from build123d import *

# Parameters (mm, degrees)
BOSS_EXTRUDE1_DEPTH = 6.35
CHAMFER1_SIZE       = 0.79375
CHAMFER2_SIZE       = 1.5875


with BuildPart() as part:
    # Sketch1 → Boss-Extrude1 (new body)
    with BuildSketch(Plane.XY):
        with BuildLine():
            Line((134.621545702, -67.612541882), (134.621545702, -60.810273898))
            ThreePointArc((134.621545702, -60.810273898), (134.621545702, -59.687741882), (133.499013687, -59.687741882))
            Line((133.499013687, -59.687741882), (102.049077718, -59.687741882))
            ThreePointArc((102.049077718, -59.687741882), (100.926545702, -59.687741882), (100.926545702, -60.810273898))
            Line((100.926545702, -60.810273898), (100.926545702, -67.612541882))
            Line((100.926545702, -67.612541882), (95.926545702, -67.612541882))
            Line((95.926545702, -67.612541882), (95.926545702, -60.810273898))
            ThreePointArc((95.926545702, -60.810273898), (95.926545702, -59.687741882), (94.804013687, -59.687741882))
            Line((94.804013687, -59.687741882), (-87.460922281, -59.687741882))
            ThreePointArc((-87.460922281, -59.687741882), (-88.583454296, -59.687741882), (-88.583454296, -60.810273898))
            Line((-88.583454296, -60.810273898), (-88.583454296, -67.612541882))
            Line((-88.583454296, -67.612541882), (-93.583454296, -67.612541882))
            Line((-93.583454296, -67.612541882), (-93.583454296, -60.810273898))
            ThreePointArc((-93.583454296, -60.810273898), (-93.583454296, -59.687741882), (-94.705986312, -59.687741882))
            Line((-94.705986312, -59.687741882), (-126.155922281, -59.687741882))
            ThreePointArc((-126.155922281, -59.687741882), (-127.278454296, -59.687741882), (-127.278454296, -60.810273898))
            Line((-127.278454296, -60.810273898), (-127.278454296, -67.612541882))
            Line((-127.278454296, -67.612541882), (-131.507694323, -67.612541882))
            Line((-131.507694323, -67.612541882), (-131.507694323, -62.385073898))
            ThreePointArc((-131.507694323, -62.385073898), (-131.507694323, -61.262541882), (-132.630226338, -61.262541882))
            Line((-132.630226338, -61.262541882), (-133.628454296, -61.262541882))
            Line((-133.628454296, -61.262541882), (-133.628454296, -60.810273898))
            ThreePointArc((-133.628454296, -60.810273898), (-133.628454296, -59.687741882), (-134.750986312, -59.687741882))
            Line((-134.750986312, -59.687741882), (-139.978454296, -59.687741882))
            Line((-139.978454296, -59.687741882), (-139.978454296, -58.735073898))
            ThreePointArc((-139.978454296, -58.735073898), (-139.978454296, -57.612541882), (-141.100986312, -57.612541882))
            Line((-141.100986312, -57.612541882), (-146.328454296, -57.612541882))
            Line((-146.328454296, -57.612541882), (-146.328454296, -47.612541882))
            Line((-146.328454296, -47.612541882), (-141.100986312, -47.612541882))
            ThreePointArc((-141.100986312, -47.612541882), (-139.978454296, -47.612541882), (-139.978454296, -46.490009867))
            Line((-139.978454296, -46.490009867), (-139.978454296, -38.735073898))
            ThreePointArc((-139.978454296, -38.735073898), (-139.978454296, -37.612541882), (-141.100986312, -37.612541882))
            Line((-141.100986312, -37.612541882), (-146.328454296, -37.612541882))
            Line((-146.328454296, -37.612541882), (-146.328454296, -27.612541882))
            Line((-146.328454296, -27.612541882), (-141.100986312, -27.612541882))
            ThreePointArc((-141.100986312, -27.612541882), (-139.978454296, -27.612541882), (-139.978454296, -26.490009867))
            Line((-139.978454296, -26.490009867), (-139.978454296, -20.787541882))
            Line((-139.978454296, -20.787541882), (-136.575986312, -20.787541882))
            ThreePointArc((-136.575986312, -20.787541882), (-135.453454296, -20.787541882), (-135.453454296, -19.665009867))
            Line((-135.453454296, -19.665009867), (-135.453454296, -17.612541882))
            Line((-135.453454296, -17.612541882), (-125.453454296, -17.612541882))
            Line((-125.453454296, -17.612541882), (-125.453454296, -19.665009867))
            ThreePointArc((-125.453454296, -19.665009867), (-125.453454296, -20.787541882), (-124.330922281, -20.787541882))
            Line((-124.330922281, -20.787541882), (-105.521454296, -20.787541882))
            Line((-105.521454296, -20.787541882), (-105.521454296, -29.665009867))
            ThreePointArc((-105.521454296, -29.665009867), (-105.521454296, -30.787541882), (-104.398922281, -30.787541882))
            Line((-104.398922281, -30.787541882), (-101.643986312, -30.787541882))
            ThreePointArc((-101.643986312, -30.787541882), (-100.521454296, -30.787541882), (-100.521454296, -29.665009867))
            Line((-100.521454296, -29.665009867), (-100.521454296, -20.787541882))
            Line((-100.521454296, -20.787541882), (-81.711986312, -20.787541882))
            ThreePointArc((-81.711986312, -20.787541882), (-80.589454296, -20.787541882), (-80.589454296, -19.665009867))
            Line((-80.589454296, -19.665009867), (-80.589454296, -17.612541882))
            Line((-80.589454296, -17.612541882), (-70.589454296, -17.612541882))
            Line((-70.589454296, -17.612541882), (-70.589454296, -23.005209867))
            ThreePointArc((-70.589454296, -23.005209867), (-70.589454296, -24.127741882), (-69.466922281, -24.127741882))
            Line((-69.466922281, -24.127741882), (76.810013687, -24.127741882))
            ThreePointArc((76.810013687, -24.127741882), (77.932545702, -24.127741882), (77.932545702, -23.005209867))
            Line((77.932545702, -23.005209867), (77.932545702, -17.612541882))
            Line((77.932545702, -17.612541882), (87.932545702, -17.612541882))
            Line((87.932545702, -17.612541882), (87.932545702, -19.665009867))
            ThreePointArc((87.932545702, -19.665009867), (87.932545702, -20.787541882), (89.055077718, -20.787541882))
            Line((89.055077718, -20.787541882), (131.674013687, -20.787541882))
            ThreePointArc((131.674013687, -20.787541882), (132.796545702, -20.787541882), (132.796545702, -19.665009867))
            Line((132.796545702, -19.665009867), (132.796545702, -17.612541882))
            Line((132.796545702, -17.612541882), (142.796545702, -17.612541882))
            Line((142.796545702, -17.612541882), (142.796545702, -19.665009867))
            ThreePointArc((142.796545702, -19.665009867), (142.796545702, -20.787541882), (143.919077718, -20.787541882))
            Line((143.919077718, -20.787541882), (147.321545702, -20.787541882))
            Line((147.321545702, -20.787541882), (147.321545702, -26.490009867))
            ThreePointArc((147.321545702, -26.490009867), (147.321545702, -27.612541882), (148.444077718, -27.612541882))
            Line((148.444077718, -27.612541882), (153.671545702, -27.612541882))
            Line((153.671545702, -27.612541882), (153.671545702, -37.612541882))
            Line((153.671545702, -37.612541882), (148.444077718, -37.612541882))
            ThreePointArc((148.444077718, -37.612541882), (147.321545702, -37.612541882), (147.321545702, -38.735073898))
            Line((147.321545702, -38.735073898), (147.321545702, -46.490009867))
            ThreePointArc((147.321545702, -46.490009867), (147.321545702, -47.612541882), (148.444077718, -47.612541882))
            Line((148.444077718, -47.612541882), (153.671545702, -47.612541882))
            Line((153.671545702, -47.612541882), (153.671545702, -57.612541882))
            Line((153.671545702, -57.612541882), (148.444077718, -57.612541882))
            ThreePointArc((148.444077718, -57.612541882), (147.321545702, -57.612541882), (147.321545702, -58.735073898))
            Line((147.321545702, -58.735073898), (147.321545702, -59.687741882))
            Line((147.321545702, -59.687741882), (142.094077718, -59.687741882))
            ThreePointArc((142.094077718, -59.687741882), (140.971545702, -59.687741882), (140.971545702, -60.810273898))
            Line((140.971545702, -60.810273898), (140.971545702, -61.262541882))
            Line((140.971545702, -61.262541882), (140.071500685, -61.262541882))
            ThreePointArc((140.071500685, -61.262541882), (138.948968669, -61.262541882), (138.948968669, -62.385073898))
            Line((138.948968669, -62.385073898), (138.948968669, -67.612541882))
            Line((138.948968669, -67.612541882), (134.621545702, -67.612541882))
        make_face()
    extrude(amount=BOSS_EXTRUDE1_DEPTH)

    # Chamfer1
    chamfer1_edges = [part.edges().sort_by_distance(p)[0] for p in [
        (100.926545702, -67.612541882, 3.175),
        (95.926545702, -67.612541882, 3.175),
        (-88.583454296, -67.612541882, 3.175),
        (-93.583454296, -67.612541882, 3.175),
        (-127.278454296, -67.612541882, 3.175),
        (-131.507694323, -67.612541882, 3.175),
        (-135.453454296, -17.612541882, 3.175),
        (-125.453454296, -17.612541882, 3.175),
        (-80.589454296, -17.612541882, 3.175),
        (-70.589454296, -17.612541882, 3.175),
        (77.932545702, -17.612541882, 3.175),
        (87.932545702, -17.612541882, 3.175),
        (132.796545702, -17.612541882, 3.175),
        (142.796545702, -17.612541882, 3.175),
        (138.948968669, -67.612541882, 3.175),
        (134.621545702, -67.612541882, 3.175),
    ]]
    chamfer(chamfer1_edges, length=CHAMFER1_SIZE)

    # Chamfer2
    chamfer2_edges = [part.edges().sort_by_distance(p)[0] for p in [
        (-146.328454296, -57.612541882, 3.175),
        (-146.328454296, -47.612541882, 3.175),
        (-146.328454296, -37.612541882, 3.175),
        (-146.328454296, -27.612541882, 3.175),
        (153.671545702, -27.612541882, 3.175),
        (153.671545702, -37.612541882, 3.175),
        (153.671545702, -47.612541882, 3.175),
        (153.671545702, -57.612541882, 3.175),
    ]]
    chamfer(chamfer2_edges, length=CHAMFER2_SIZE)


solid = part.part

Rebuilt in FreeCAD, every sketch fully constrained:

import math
import FreeCAD as App
import Part
import Sketcher
Q = App.Units.Quantity


def edges_at(feature, points):
    """Names of the edges that pass closest to the given points."""
    edges = feature.Shape.Edges
    near = lambda p: min(range(len(edges)), key=lambda i: edges[i].distToShape(Part.Vertex(*p))[0])
    return sorted({f"Edge{near(p) + 1}" for p in points})

doc = App.newDocument("Part")
params = doc.addObject("Spreadsheet::Sheet", "Params")
for row, (alias, value) in enumerate([
    ("sketch1_radius", "0.03125 in"),
    ("pad1_length", "0.25 in"),
    ("chamfer_size", "0.03125 in"),
    ("chamfer2_size", "0.0625 in"),
], start=1):
    params.set(f"A{row}", alias)
    params.set(f"B{row}", "=" + value)
    params.setAlias(f"B{row}", alias)

body = doc.addObject("PartDesign::Body", "Body")

# Sketch on XY plane
sketch1 = body.newObject("Sketcher::SketchObject", "Sketch")
sketch1.AttachmentSupport = (doc.getObject("XY_Plane"), [""])
sketch1.MapMode = "FlatFace"
sketch1.addGeometry(Part.LineSegment(App.Vector(134.62, -60.81, 0), App.Vector(134.62, -67.61, 0)), False)
sketch1.addGeometry(Part.LineSegment(App.Vector(134.62, -67.61, 0), App.Vector(138.95, -67.61, 0)), False)
sketch1.addGeometry(Part.LineSegment(App.Vector(138.95, -67.61, 0), App.Vector(138.95, -62.39, 0)), False)
sketch1.addGeometry(Part.ArcOfCircle(Part.Circle(App.Vector(139.51, -61.82, 0), App.Vector(0, 0, 1), 0.79), math.radians(45), math.radians(225)), False)
sketch1.addGeometry(Part.LineSegment(App.Vector(140.07, -61.26, 0), App.Vector(140.97, -61.26, 0)), False)
sketch1.addGeometry(Part.LineSegment(App.Vector(140.97, -61.26, 0), App.Vector(140.97, -60.81, 0)), False)
sketch1.addGeometry(Part.ArcOfCircle(Part.Circle(App.Vector(141.53, -60.25, 0), App.Vector(0, 0, 1), 0.79), math.radians(45), math.radians(225)), False)
sketch1.addGeometry(Part.LineSegment(App.Vector(142.09, -59.69, 0), App.Vector(147.32, -59.69, 0)), False)
sketch1.addGeometry(Part.LineSegment(App.Vector(147.32, -59.69, 0), App.Vector(147.32, -58.74, 0)), False)
sketch1.addGeometry(Part.ArcOfCircle(Part.Circle(App.Vector(147.88, -58.17, 0), App.Vector(0, 0, 1), 0.79), math.radians(45), math.radians(225)), False)
sketch1.addGeometry(Part.LineSegment(App.Vector(148.44, -57.61, 0), App.Vector(153.67, -57.61, 0)), False)
sketch1.addGeometry(Part.LineSegment(App.Vector(153.67, -57.61, 0), App.Vector(153.67, -47.61, 0)), False)
sketch1.addGeometry(Part.LineSegment(App.Vector(153.67, -47.61, 0), App.Vector(148.44, -47.61, 0)), False)
sketch1.addGeometry(Part.ArcOfCircle(Part.Circle(App.Vector(147.88, -47.05, 0), App.Vector(0, 0, 1), 0.79), math.radians(135), math.radians(315)), False)
sketch1.addGeometry(Part.LineSegment(App.Vector(147.32, -46.49, 0), App.Vector(147.32, -38.74, 0)), False)
sketch1.addGeometry(Part.ArcOfCircle(Part.Circle(App.Vector(147.88, -38.17, 0), App.Vector(0, 0, 1), 0.79), math.radians(45), math.radians(225)), False)
sketch1.addGeometry(Part.LineSegment(App.Vector(148.44, -37.61, 0), App.Vector(153.67, -37.61, 0)), False)
sketch1.addGeometry(Part.LineSegment(App.Vector(153.67, -37.61, 0), App.Vector(153.67, -27.61, 0)), False)
sketch1.addGeometry(Part.LineSegment(App.Vector(153.67, -27.61, 0), App.Vector(148.44, -27.61, 0)), False)
sketch1.addGeometry(Part.ArcOfCircle(Part.Circle(App.Vector(147.88, -27.05, 0), App.Vector(0, 0, 1), 0.79), math.radians(135), math.radians(315)), False)
sketch1.addGeometry(Part.LineSegment(App.Vector(147.32, -26.49, 0), App.Vector(147.32, -20.79, 0)), False)
sketch1.addGeometry(Part.LineSegment(App.Vector(147.32, -20.79, 0), App.Vector(143.92, -20.79, 0)), False)
sketch1.addGeometry(Part.ArcOfCircle(Part.Circle(App.Vector(143.36, -20.23, 0), App.Vector(0, 0, 1), 0.79), math.radians(135), math.radians(315)), False)
sketch1.addGeometry(Part.LineSegment(App.Vector(142.8, -19.67, 0), App.Vector(142.8, -17.61, 0)), False)
sketch1.addGeometry(Part.LineSegment(App.Vector(142.8, -17.61, 0), App.Vector(132.8, -17.61, 0)), False)
sketch1.addGeometry(Part.LineSegment(App.Vector(132.8, -17.61, 0), App.Vector(132.8, -19.67, 0)), False)
sketch1.addGeometry(Part.ArcOfCircle(Part.Circle(App.Vector(132.24, -20.23, 0), App.Vector(0, 0, 1), 0.79), math.radians(-135), math.radians(45)), False)
sketch1.addGeometry(Part.LineSegment(App.Vector(131.67, -20.79, 0), App.Vector(89.06, -20.79, 0)), False)
sketch1.addGeometry(Part.ArcOfCircle(Part.Circle(App.Vector(88.49, -20.23, 0), App.Vector(0, 0, 1), 0.79), math.radians(135), math.radians(315)), False)
sketch1.addGeometry(Part.LineSegment(App.Vector(87.93, -19.67, 0), App.Vector(87.93, -17.61, 0)), False)
sketch1.addGeometry(Part.LineSegment(App.Vector(87.93, -17.61, 0), App.Vector(77.93, -17.61, 0)), False)
sketch1.addGeometry(Part.LineSegment(App.Vector(77.93, -17.61, 0), App.Vector(77.93, -23.01, 0)), False)
sketch1.addGeometry(Part.ArcOfCircle(Part.Circle(App.Vector(77.37, -23.57, 0), App.Vector(0, 0, 1), 0.79), math.radians(-135), math.radians(45)), False)
sketch1.addGeometry(Part.LineSegment(App.Vector(76.81, -24.13, 0), App.Vector(-69.47, -24.13, 0)), False)
sketch1.addGeometry(Part.ArcOfCircle(Part.Circle(App.Vector(-70.03, -23.57, 0), App.Vector(0, 0, 1), 0.79), math.radians(135), math.radians(315)), False)
sketch1.addGeometry(Part.LineSegment(App.Vector(-70.59, -23.01, 0), App.Vector(-70.59, -17.61, 0)), False)
sketch1.addGeometry(Part.LineSegment(App.Vector(-70.59, -17.61, 0), App.Vector(-80.59, -17.61, 0)), False)
sketch1.addGeometry(Part.LineSegment(App.Vector(-80.59, -17.61, 0), App.Vector(-80.59, -19.67, 0)), False)
sketch1.addGeometry(Part.ArcOfCircle(Part.Circle(App.Vector(-81.15, -20.23, 0), App.Vector(0, 0, 1), 0.79), math.radians(-135), math.radians(45)), False)
sketch1.addGeometry(Part.LineSegment(App.Vector(-81.71, -20.79, 0), App.Vector(-100.52, -20.79, 0)), False)
sketch1.addGeometry(Part.LineSegment(App.Vector(-100.52, -20.79, 0), App.Vector(-100.52, -29.67, 0)), False)
sketch1.addGeometry(Part.ArcOfCircle(Part.Circle(App.Vector(-101.08, -30.23, 0), App.Vector(0, 0, 1), 0.79), math.radians(-135), math.radians(45)), False)
sketch1.addGeometry(Part.LineSegment(App.Vector(-101.64, -30.79, 0), App.Vector(-104.4, -30.79, 0)), False)
sketch1.addGeometry(Part.ArcOfCircle(Part.Circle(App.Vector(-104.96, -30.23, 0), App.Vector(0, 0, 1), 0.79), math.radians(135), math.radians(315)), False)
sketch1.addGeometry(Part.LineSegment(App.Vector(-105.52, -29.67, 0), App.Vector(-105.52, -20.79, 0)), False)
sketch1.addGeometry(Part.LineSegment(App.Vector(-105.52, -20.79, 0), App.Vector(-124.33, -20.79, 0)), False)
sketch1.addGeometry(Part.ArcOfCircle(Part.Circle(App.Vector(-124.89, -20.23, 0), App.Vector(0, 0, 1), 0.79), math.radians(135), math.radians(315)), False)
sketch1.addGeometry(Part.LineSegment(App.Vector(-125.45, -19.67, 0), App.Vector(-125.45, -17.61, 0)), False)
sketch1.addGeometry(Part.LineSegment(App.Vector(-125.45, -17.61, 0), App.Vector(-135.45, -17.61, 0)), False)
sketch1.addGeometry(Part.LineSegment(App.Vector(-135.45, -17.61, 0), App.Vector(-135.45, -19.67, 0)), False)
sketch1.addGeometry(Part.ArcOfCircle(Part.Circle(App.Vector(-136.01, -20.23, 0), App.Vector(0, 0, 1), 0.79), math.radians(-135), math.radians(45)), False)
sketch1.addGeometry(Part.LineSegment(App.Vector(-136.58, -20.79, 0), App.Vector(-139.98, -20.79, 0)), False)
sketch1.addGeometry(Part.LineSegment(App.Vector(-139.98, -20.79, 0), App.Vector(-139.98, -26.49, 0)), False)
sketch1.addGeometry(Part.ArcOfCircle(Part.Circle(App.Vector(-140.54, -27.05, 0), App.Vector(0, 0, 1), 0.79), math.radians(-135), math.radians(45)), False)
sketch1.addGeometry(Part.LineSegment(App.Vector(-141.1, -27.61, 0), App.Vector(-146.33, -27.61, 0)), False)
sketch1.addGeometry(Part.LineSegment(App.Vector(-146.33, -27.61, 0), App.Vector(-146.33, -37.61, 0)), False)
sketch1.addGeometry(Part.LineSegment(App.Vector(-146.33, -37.61, 0), App.Vector(-141.1, -37.61, 0)), False)
sketch1.addGeometry(Part.ArcOfCircle(Part.Circle(App.Vector(-140.54, -38.17, 0), App.Vector(0, 0, 1), 0.79), math.radians(-45), math.radians(135)), False)
sketch1.addGeometry(Part.LineSegment(App.Vector(-139.98, -38.74, 0), App.Vector(-139.98, -46.49, 0)), False)
sketch1.addGeometry(Part.ArcOfCircle(Part.Circle(App.Vector(-140.54, -47.05, 0), App.Vector(0, 0, 1), 0.79), math.radians(-135), math.radians(45)), False)
sketch1.addGeometry(Part.LineSegment(App.Vector(-141.1, -47.61, 0), App.Vector(-146.33, -47.61, 0)), False)
sketch1.addGeometry(Part.LineSegment(App.Vector(-146.33, -47.61, 0), App.Vector(-146.33, -57.61, 0)), False)
sketch1.addGeometry(Part.LineSegment(App.Vector(-146.33, -57.61, 0), App.Vector(-141.1, -57.61, 0)), False)
sketch1.addGeometry(Part.ArcOfCircle(Part.Circle(App.Vector(-140.54, -58.17, 0), App.Vector(0, 0, 1), 0.79), math.radians(-45), math.radians(135)), False)
sketch1.addGeometry(Part.LineSegment(App.Vector(-139.98, -58.74, 0), App.Vector(-139.98, -59.69, 0)), False)
sketch1.addGeometry(Part.LineSegment(App.Vector(-139.98, -59.69, 0), App.Vector(-134.75, -59.69, 0)), False)
sketch1.addGeometry(Part.ArcOfCircle(Part.Circle(App.Vector(-134.19, -60.25, 0), App.Vector(0, 0, 1), 0.79), math.radians(-45), math.radians(135)), False)
sketch1.addGeometry(Part.LineSegment(App.Vector(-133.63, -60.81, 0), App.Vector(-133.63, -61.26, 0)), False)
sketch1.addGeometry(Part.LineSegment(App.Vector(-133.63, -61.26, 0), App.Vector(-132.63, -61.26, 0)), False)
sketch1.addGeometry(Part.ArcOfCircle(Part.Circle(App.Vector(-132.07, -61.82, 0), App.Vector(0, 0, 1), 0.79), math.radians(-45), math.radians(135)), False)
sketch1.addGeometry(Part.LineSegment(App.Vector(-131.51, -62.39, 0), App.Vector(-131.51, -67.61, 0)), False)
sketch1.addGeometry(Part.LineSegment(App.Vector(-131.51, -67.61, 0), App.Vector(-127.28, -67.61, 0)), False)
sketch1.addGeometry(Part.LineSegment(App.Vector(-127.28, -67.61, 0), App.Vector(-127.28, -60.81, 0)), False)
sketch1.addGeometry(Part.ArcOfCircle(Part.Circle(App.Vector(-126.72, -60.25, 0), App.Vector(0, 0, 1), 0.79), math.radians(45), math.radians(225)), False)
sketch1.addGeometry(Part.LineSegment(App.Vector(-126.16, -59.69, 0), App.Vector(-94.71, -59.69, 0)), False)
sketch1.addGeometry(Part.ArcOfCircle(Part.Circle(App.Vector(-94.14, -60.25, 0), App.Vector(0, 0, 1), 0.79), math.radians(-45), math.radians(135)), False)
sketch1.addGeometry(Part.LineSegment(App.Vector(-93.58, -60.81, 0), App.Vector(-93.58, -67.61, 0)), False)
sketch1.addGeometry(Part.LineSegment(App.Vector(-93.58, -67.61, 0), App.Vector(-88.58, -67.61, 0)), False)
sketch1.addGeometry(Part.LineSegment(App.Vector(-88.58, -67.61, 0), App.Vector(-88.58, -60.81, 0)), False)
sketch1.addGeometry(Part.ArcOfCircle(Part.Circle(App.Vector(-88.02, -60.25, 0), App.Vector(0, 0, 1), 0.79), math.radians(45), math.radians(225)), False)
sketch1.addGeometry(Part.LineSegment(App.Vector(-87.46, -59.69, 0), App.Vector(94.8, -59.69, 0)), False)
sketch1.addGeometry(Part.ArcOfCircle(Part.Circle(App.Vector(95.37, -60.25, 0), App.Vector(0, 0, 1), 0.79), math.radians(-45), math.radians(135)), False)
sketch1.addGeometry(Part.LineSegment(App.Vector(95.93, -60.81, 0), App.Vector(95.93, -67.61, 0)), False)
sketch1.addGeometry(Part.LineSegment(App.Vector(95.93, -67.61, 0), App.Vector(100.93, -67.61, 0)), False)
sketch1.addGeometry(Part.LineSegment(App.Vector(100.93, -67.61, 0), App.Vector(100.93, -60.81, 0)), False)
sketch1.addGeometry(Part.ArcOfCircle(Part.Circle(App.Vector(101.49, -60.25, 0), App.Vector(0, 0, 1), 0.79), math.radians(45), math.radians(225)), False)
sketch1.addGeometry(Part.LineSegment(App.Vector(102.05, -59.69, 0), App.Vector(133.5, -59.69, 0)), False)
sketch1.addGeometry(Part.ArcOfCircle(Part.Circle(App.Vector(134.06, -60.25, 0), App.Vector(0, 0, 1), 0.79), math.radians(-45), math.radians(135)), False)
sketch1.addConstraint(Sketcher.Constraint("Coincident", 0, 2, 1, 1))
sketch1.addConstraint(Sketcher.Constraint("Coincident", 1, 2, 2, 1))
sketch1.addConstraint(Sketcher.Constraint("Coincident", 2, 2, 3, 2))
sketch1.addConstraint(Sketcher.Constraint("Coincident", 3, 1, 4, 1))
sketch1.addConstraint(Sketcher.Constraint("Coincident", 4, 2, 5, 1))
sketch1.addConstraint(Sketcher.Constraint("Coincident", 5, 2, 6, 2))
sketch1.addConstraint(Sketcher.Constraint("Coincident", 6, 1, 7, 1))
sketch1.addConstraint(Sketcher.Constraint("Coincident", 7, 2, 8, 1))
sketch1.addConstraint(Sketcher.Constraint("Coincident", 8, 2, 9, 2))
sketch1.addConstraint(Sketcher.Constraint("Coincident", 9, 1, 10, 1))
sketch1.addConstraint(Sketcher.Constraint("Coincident", 10, 2, 11, 1))
sketch1.addConstraint(Sketcher.Constraint("Coincident", 11, 2, 12, 1))
sketch1.addConstraint(Sketcher.Constraint("Coincident", 12, 2, 13, 2))
sketch1.addConstraint(Sketcher.Constraint("Coincident", 13, 1, 14, 1))
sketch1.addConstraint(Sketcher.Constraint("Coincident", 14, 2, 15, 2))
sketch1.addConstraint(Sketcher.Constraint("Coincident", 15, 1, 16, 1))
sketch1.addConstraint(Sketcher.Constraint("Coincident", 16, 2, 17, 1))
sketch1.addConstraint(Sketcher.Constraint("Coincident", 17, 2, 18, 1))
sketch1.addConstraint(Sketcher.Constraint("Coincident", 18, 2, 19, 2))
sketch1.addConstraint(Sketcher.Constraint("Coincident", 19, 1, 20, 1))
sketch1.addConstraint(Sketcher.Constraint("Coincident", 20, 2, 21, 1))
sketch1.addConstraint(Sketcher.Constraint("Coincident", 21, 2, 22, 2))
sketch1.addConstraint(Sketcher.Constraint("Coincident", 22, 1, 23, 1))
sketch1.addConstraint(Sketcher.Constraint("Coincident", 23, 2, 24, 1))
sketch1.addConstraint(Sketcher.Constraint("Coincident", 24, 2, 25, 1))
sketch1.addConstraint(Sketcher.Constraint("Coincident", 25, 2, 26, 2))
sketch1.addConstraint(Sketcher.Constraint("Coincident", 26, 1, 27, 1))
sketch1.addConstraint(Sketcher.Constraint("Coincident", 27, 2, 28, 2))
sketch1.addConstraint(Sketcher.Constraint("Coincident", 28, 1, 29, 1))
sketch1.addConstraint(Sketcher.Constraint("Coincident", 29, 2, 30, 1))
sketch1.addConstraint(Sketcher.Constraint("Coincident", 30, 2, 31, 1))
sketch1.addConstraint(Sketcher.Constraint("Coincident", 31, 2, 32, 2))
sketch1.addConstraint(Sketcher.Constraint("Coincident", 32, 1, 33, 1))
sketch1.addConstraint(Sketcher.Constraint("Coincident", 33, 2, 34, 2))
sketch1.addConstraint(Sketcher.Constraint("Coincident", 34, 1, 35, 1))
sketch1.addConstraint(Sketcher.Constraint("Coincident", 35, 2, 36, 1))
sketch1.addConstraint(Sketcher.Constraint("Coincident", 36, 2, 37, 1))
sketch1.addConstraint(Sketcher.Constraint("Coincident", 37, 2, 38, 2))
sketch1.addConstraint(Sketcher.Constraint("Coincident", 38, 1, 39, 1))
sketch1.addConstraint(Sketcher.Constraint("Coincident", 39, 2, 40, 1))
sketch1.addConstraint(Sketcher.Constraint("Coincident", 40, 2, 41, 2))
sketch1.addConstraint(Sketcher.Constraint("Coincident", 41, 1, 42, 1))
sketch1.addConstraint(Sketcher.Constraint("Coincident", 42, 2, 43, 2))
sketch1.addConstraint(Sketcher.Constraint("Coincident", 43, 1, 44, 1))
sketch1.addConstraint(Sketcher.Constraint("Coincident", 44, 2, 45, 1))
sketch1.addConstraint(Sketcher.Constraint("Coincident", 45, 2, 46, 2))
sketch1.addConstraint(Sketcher.Constraint("Coincident", 46, 1, 47, 1))
sketch1.addConstraint(Sketcher.Constraint("Coincident", 47, 2, 48, 1))
sketch1.addConstraint(Sketcher.Constraint("Coincident", 48, 2, 49, 1))
sketch1.addConstraint(Sketcher.Constraint("Coincident", 49, 2, 50, 2))
sketch1.addConstraint(Sketcher.Constraint("Coincident", 50, 1, 51, 1))
sketch1.addConstraint(Sketcher.Constraint("Coincident", 51, 2, 52, 1))
sketch1.addConstraint(Sketcher.Constraint("Coincident", 52, 2, 53, 2))
sketch1.addConstraint(Sketcher.Constraint("Coincident", 53, 1, 54, 1))
sketch1.addConstraint(Sketcher.Constraint("Coincident", 54, 2, 55, 1))
sketch1.addConstraint(Sketcher.Constraint("Coincident", 55, 2, 56, 1))
sketch1.addConstraint(Sketcher.Constraint("Coincident", 56, 2, 57, 2))
sketch1.addConstraint(Sketcher.Constraint("Coincident", 57, 1, 58, 1))
sketch1.addConstraint(Sketcher.Constraint("Coincident", 58, 2, 59, 2))
sketch1.addConstraint(Sketcher.Constraint("Coincident", 59, 1, 60, 1))
sketch1.addConstraint(Sketcher.Constraint("Coincident", 60, 2, 61, 1))
sketch1.addConstraint(Sketcher.Constraint("Coincident", 61, 2, 62, 1))
sketch1.addConstraint(Sketcher.Constraint("Coincident", 62, 2, 63, 2))
sketch1.addConstraint(Sketcher.Constraint("Coincident", 63, 1, 64, 1))
sketch1.addConstraint(Sketcher.Constraint("Coincident", 64, 2, 65, 1))
sketch1.addConstraint(Sketcher.Constraint("Coincident", 65, 2, 66, 2))
sketch1.addConstraint(Sketcher.Constraint("Coincident", 66, 1, 67, 1))
sketch1.addConstraint(Sketcher.Constraint("Coincident", 67, 2, 68, 1))
sketch1.addConstraint(Sketcher.Constraint("Coincident", 68, 2, 69, 2))
sketch1.addConstraint(Sketcher.Constraint("Coincident", 69, 1, 70, 1))
sketch1.addConstraint(Sketcher.Constraint("Coincident", 70, 2, 71, 1))
sketch1.addConstraint(Sketcher.Constraint("Coincident", 71, 2, 72, 1))
sketch1.addConstraint(Sketcher.Constraint("Coincident", 72, 2, 73, 2))
sketch1.addConstraint(Sketcher.Constraint("Coincident", 73, 1, 74, 1))
sketch1.addConstraint(Sketcher.Constraint("Coincident", 74, 2, 75, 2))
sketch1.addConstraint(Sketcher.Constraint("Coincident", 75, 1, 76, 1))
sketch1.addConstraint(Sketcher.Constraint("Coincident", 76, 2, 77, 1))
sketch1.addConstraint(Sketcher.Constraint("Coincident", 77, 2, 78, 1))
sketch1.addConstraint(Sketcher.Constraint("Coincident", 78, 2, 79, 2))
sketch1.addConstraint(Sketcher.Constraint("Coincident", 79, 1, 80, 1))
sketch1.addConstraint(Sketcher.Constraint("Coincident", 80, 2, 81, 2))
sketch1.addConstraint(Sketcher.Constraint("Coincident", 81, 1, 82, 1))
sketch1.addConstraint(Sketcher.Constraint("Coincident", 82, 2, 83, 1))
sketch1.addConstraint(Sketcher.Constraint("Coincident", 83, 2, 84, 1))
sketch1.addConstraint(Sketcher.Constraint("Coincident", 84, 2, 85, 2))
sketch1.addConstraint(Sketcher.Constraint("Coincident", 85, 1, 86, 1))
sketch1.addConstraint(Sketcher.Constraint("Coincident", 86, 2, 87, 2))
sketch1.addConstraint(Sketcher.Constraint("Coincident", 87, 1, 0, 1))
sketch1.addConstraint(Sketcher.Constraint("Vertical", 0))
sketch1.addConstraint(Sketcher.Constraint("Horizontal", 1))
sketch1.addConstraint(Sketcher.Constraint("Vertical", 2))
sketch1.addConstraint(Sketcher.Constraint("Horizontal", 4))
sketch1.addConstraint(Sketcher.Constraint("Vertical", 5))
sketch1.addConstraint(Sketcher.Constraint("Horizontal", 7))
sketch1.addConstraint(Sketcher.Constraint("Vertical", 8))
sketch1.addConstraint(Sketcher.Constraint("Horizontal", 10))
sketch1.addConstraint(Sketcher.Constraint("Vertical", 11))
sketch1.addConstraint(Sketcher.Constraint("Horizontal", 12))
sketch1.addConstraint(Sketcher.Constraint("Vertical", 14))
sketch1.addConstraint(Sketcher.Constraint("Horizontal", 16))
sketch1.addConstraint(Sketcher.Constraint("Vertical", 17))
sketch1.addConstraint(Sketcher.Constraint("Horizontal", 18))
sketch1.addConstraint(Sketcher.Constraint("Vertical", 20))
sketch1.addConstraint(Sketcher.Constraint("Horizontal", 21))
sketch1.addConstraint(Sketcher.Constraint("Vertical", 23))
sketch1.addConstraint(Sketcher.Constraint("Horizontal", 24))
sketch1.addConstraint(Sketcher.Constraint("Vertical", 25))
sketch1.addConstraint(Sketcher.Constraint("Horizontal", 27))
sketch1.addConstraint(Sketcher.Constraint("Vertical", 29))
sketch1.addConstraint(Sketcher.Constraint("Horizontal", 30))
sketch1.addConstraint(Sketcher.Constraint("Vertical", 31))
sketch1.addConstraint(Sketcher.Constraint("Horizontal", 33))
sketch1.addConstraint(Sketcher.Constraint("Vertical", 35))
sketch1.addConstraint(Sketcher.Constraint("Horizontal", 36))
sketch1.addConstraint(Sketcher.Constraint("Vertical", 37))
sketch1.addConstraint(Sketcher.Constraint("Horizontal", 39))
sketch1.addConstraint(Sketcher.Constraint("Vertical", 40))
sketch1.addConstraint(Sketcher.Constraint("Horizontal", 42))
sketch1.addConstraint(Sketcher.Constraint("Vertical", 44))
sketch1.addConstraint(Sketcher.Constraint("Horizontal", 45))
sketch1.addConstraint(Sketcher.Constraint("Vertical", 47))
sketch1.addConstraint(Sketcher.Constraint("Horizontal", 48))
sketch1.addConstraint(Sketcher.Constraint("Vertical", 49))
sketch1.addConstraint(Sketcher.Constraint("Horizontal", 51))
sketch1.addConstraint(Sketcher.Constraint("Vertical", 52))
sketch1.addConstraint(Sketcher.Constraint("Horizontal", 54))
sketch1.addConstraint(Sketcher.Constraint("Vertical", 55))
sketch1.addConstraint(Sketcher.Constraint("Horizontal", 56))
sketch1.addConstraint(Sketcher.Constraint("Vertical", 58))
sketch1.addConstraint(Sketcher.Constraint("Horizontal", 60))
sketch1.addConstraint(Sketcher.Constraint("Vertical", 61))
sketch1.addConstraint(Sketcher.Constraint("Horizontal", 62))
sketch1.addConstraint(Sketcher.Constraint("Vertical", 64))
sketch1.addConstraint(Sketcher.Constraint("Horizontal", 65))
sketch1.addConstraint(Sketcher.Constraint("Vertical", 67))
sketch1.addConstraint(Sketcher.Constraint("Horizontal", 68))
sketch1.addConstraint(Sketcher.Constraint("Vertical", 70))
sketch1.addConstraint(Sketcher.Constraint("Horizontal", 71))
sketch1.addConstraint(Sketcher.Constraint("Vertical", 72))
sketch1.addConstraint(Sketcher.Constraint("Horizontal", 74))
sketch1.addConstraint(Sketcher.Constraint("Vertical", 76))
sketch1.addConstraint(Sketcher.Constraint("Horizontal", 77))
sketch1.addConstraint(Sketcher.Constraint("Vertical", 78))
sketch1.addConstraint(Sketcher.Constraint("Horizontal", 80))
sketch1.addConstraint(Sketcher.Constraint("Vertical", 82))
sketch1.addConstraint(Sketcher.Constraint("Horizontal", 83))
sketch1.addConstraint(Sketcher.Constraint("Vertical", 84))
sketch1.addConstraint(Sketcher.Constraint("Horizontal", 86))
sketch1.addConstraint(Sketcher.Constraint("Equal", 3, 6))
sketch1.addConstraint(Sketcher.Constraint("Equal", 6, 9))
sketch1.addConstraint(Sketcher.Constraint("Equal", 9, 13))
sketch1.addConstraint(Sketcher.Constraint("Equal", 13, 15))
sketch1.addConstraint(Sketcher.Constraint("Equal", 15, 19))
sketch1.addConstraint(Sketcher.Constraint("Equal", 19, 22))
sketch1.addConstraint(Sketcher.Constraint("Equal", 22, 26))
sketch1.addConstraint(Sketcher.Constraint("Equal", 26, 28))
sketch1.addConstraint(Sketcher.Constraint("Equal", 28, 32))
sketch1.addConstraint(Sketcher.Constraint("Equal", 32, 34))
sketch1.addConstraint(Sketcher.Constraint("Equal", 34, 38))
sketch1.addConstraint(Sketcher.Constraint("Equal", 38, 41))
sketch1.addConstraint(Sketcher.Constraint("Equal", 41, 43))
sketch1.addConstraint(Sketcher.Constraint("Equal", 43, 46))
sketch1.addConstraint(Sketcher.Constraint("Equal", 46, 50))
sketch1.addConstraint(Sketcher.Constraint("Equal", 50, 53))
sketch1.addConstraint(Sketcher.Constraint("Equal", 53, 57))
sketch1.addConstraint(Sketcher.Constraint("Equal", 57, 59))
sketch1.addConstraint(Sketcher.Constraint("Equal", 59, 63))
sketch1.addConstraint(Sketcher.Constraint("Equal", 63, 66))
sketch1.addConstraint(Sketcher.Constraint("Equal", 66, 69))
sketch1.addConstraint(Sketcher.Constraint("Equal", 69, 73))
sketch1.addConstraint(Sketcher.Constraint("Equal", 73, 75))
sketch1.addConstraint(Sketcher.Constraint("Equal", 75, 79))
sketch1.addConstraint(Sketcher.Constraint("Equal", 79, 81))
sketch1.addConstraint(Sketcher.Constraint("Equal", 81, 85))
sketch1.addConstraint(Sketcher.Constraint("Equal", 85, 87))
sketch1.addConstraint(Sketcher.Constraint("Horizontal", 22, 3, 26, 3))
sketch1.addConstraint(Sketcher.Constraint("Horizontal", 26, 3, 28, 3))
sketch1.addConstraint(Sketcher.Constraint("Horizontal", 32, 3, 34, 3))
sketch1.addConstraint(Sketcher.Constraint("Horizontal", 28, 3, 38, 3))
sketch1.addConstraint(Sketcher.Constraint("Horizontal", 41, 3, 43, 3))
sketch1.addConstraint(Sketcher.Constraint("Horizontal", 38, 3, 46, 3))
sketch1.addConstraint(Sketcher.Constraint("Horizontal", 46, 3, 50, 3))
sketch1.addConstraint(Sketcher.Constraint("Horizontal", 19, 3, 53, 3))
sketch1.addConstraint(Sketcher.Constraint("Horizontal", 15, 3, 57, 3))
sketch1.addConstraint(Sketcher.Constraint("Horizontal", 13, 3, 59, 3))
sketch1.addConstraint(Sketcher.Constraint("Horizontal", 9, 3, 63, 3))
sketch1.addConstraint(Sketcher.Constraint("Horizontal", 6, 3, 66, 3))
sketch1.addConstraint(Sketcher.Constraint("Horizontal", 3, 3, 69, 3))
sketch1.addConstraint(Sketcher.Constraint("Horizontal", 66, 3, 73, 3))
sketch1.addConstraint(Sketcher.Constraint("Horizontal", 73, 3, 75, 3))
sketch1.addConstraint(Sketcher.Constraint("Horizontal", 75, 3, 79, 3))
sketch1.addConstraint(Sketcher.Constraint("Horizontal", 79, 3, 81, 3))
sketch1.addConstraint(Sketcher.Constraint("Horizontal", 81, 3, 85, 3))
sketch1.addConstraint(Sketcher.Constraint("Horizontal", 85, 3, 87, 3))
sketch1.addConstraint(Sketcher.Constraint("Horizontal", 22, 1, 25, 2))
sketch1.addConstraint(Sketcher.Constraint("Horizontal", 21, 2, 26, 1))
sketch1.addConstraint(Sketcher.Constraint("Horizontal", 25, 2, 28, 1))
sketch1.addConstraint(Sketcher.Constraint("Horizontal", 24, 2, 29, 2))
sketch1.addConstraint(Sketcher.Constraint("Horizontal", 31, 2, 34, 1))
sketch1.addConstraint(Sketcher.Constraint("Horizontal", 30, 2, 35, 2))
sketch1.addConstraint(Sketcher.Constraint("Horizontal", 28, 1, 37, 2))
sketch1.addConstraint(Sketcher.Constraint("Horizontal", 27, 2, 38, 1))
sketch1.addConstraint(Sketcher.Constraint("Horizontal", 40, 2, 43, 1))
sketch1.addConstraint(Sketcher.Constraint("Horizontal", 39, 2, 44, 2))
sketch1.addConstraint(Sketcher.Constraint("Horizontal", 37, 2, 46, 1))
sketch1.addConstraint(Sketcher.Constraint("Horizontal", 36, 2, 47, 2))
sketch1.addConstraint(Sketcher.Constraint("Horizontal", 46, 1, 49, 2))
sketch1.addConstraint(Sketcher.Constraint("Horizontal", 45, 2, 50, 1))
sketch1.addConstraint(Sketcher.Constraint("Horizontal", 19, 1, 52, 2))
sketch1.addConstraint(Sketcher.Constraint("Horizontal", 18, 2, 53, 1))
sketch1.addConstraint(Sketcher.Constraint("Horizontal", 16, 2, 55, 2))
sketch1.addConstraint(Sketcher.Constraint("Horizontal", 14, 2, 57, 1))
sketch1.addConstraint(Sketcher.Constraint("Horizontal", 13, 1, 58, 2))
sketch1.addConstraint(Sketcher.Constraint("Horizontal", 12, 2, 59, 1))
sketch1.addConstraint(Sketcher.Constraint("Horizontal", 10, 2, 61, 2))
sketch1.addConstraint(Sketcher.Constraint("Horizontal", 8, 2, 63, 1))
sketch1.addConstraint(Sketcher.Constraint("Horizontal", 7, 2, 64, 2))
sketch1.addConstraint(Sketcher.Constraint("Horizontal", 5, 2, 66, 1))
sketch1.addConstraint(Sketcher.Constraint("Horizontal", 4, 2, 67, 2))
sketch1.addConstraint(Sketcher.Constraint("Horizontal", 2, 2, 69, 1))
sketch1.addConstraint(Sketcher.Constraint("Horizontal", 1, 2, 70, 2))
sketch1.addConstraint(Sketcher.Constraint("Horizontal", 66, 1, 72, 2))
sketch1.addConstraint(Sketcher.Constraint("Horizontal", 65, 2, 73, 1))
sketch1.addConstraint(Sketcher.Constraint("Horizontal", 72, 2, 75, 1))
sketch1.addConstraint(Sketcher.Constraint("Horizontal", 71, 2, 76, 2))
sketch1.addConstraint(Sketcher.Constraint("Horizontal", 75, 1, 78, 2))
sketch1.addConstraint(Sketcher.Constraint("Horizontal", 74, 2, 79, 1))
sketch1.addConstraint(Sketcher.Constraint("Horizontal", 78, 2, 81, 1))
sketch1.addConstraint(Sketcher.Constraint("Horizontal", 77, 2, 82, 2))
sketch1.addConstraint(Sketcher.Constraint("Horizontal", 81, 1, 84, 2))
sketch1.addConstraint(Sketcher.Constraint("Horizontal", 80, 2, 85, 1))
sketch1.addConstraint(Sketcher.Constraint("Horizontal", 84, 2, 87, 1))
sketch1.addConstraint(Sketcher.Constraint("Vertical", 9, 3, 13, 3))
sketch1.addConstraint(Sketcher.Constraint("Vertical", 13, 3, 15, 3))
sketch1.addConstraint(Sketcher.Constraint("Vertical", 15, 3, 19, 3))
sketch1.addConstraint(Sketcher.Constraint("Vertical", 53, 3, 57, 3))
sketch1.addConstraint(Sketcher.Constraint("Vertical", 59, 3, 63, 3))
sketch1.addConstraint(Sketcher.Constraint("Vertical", 9, 1, 12, 2))
sketch1.addConstraint(Sketcher.Constraint("Vertical", 8, 2, 13, 1))
sketch1.addConstraint(Sketcher.Constraint("Vertical", 12, 2, 15, 1))
sketch1.addConstraint(Sketcher.Constraint("Vertical", 11, 2, 16, 2))
sketch1.addConstraint(Sketcher.Constraint("Vertical", 15, 1, 18, 2))
sketch1.addConstraint(Sketcher.Constraint("Vertical", 14, 2, 19, 1))
sketch1.addConstraint(Sketcher.Constraint("Vertical", 55, 2, 60, 2))
sketch1.addConstraint(Sketcher.Constraint("Equal", 7, 10))
sketch1.addConstraint(Sketcher.Constraint("Equal", 24, 30))
sketch1.addConstraint(Sketcher.Constraint("Equal", 30, 36))
sketch1.addConstraint(Sketcher.Constraint("Equal", 39, 45))
sketch1.addConstraint(Sketcher.Constraint("Equal", 36, 48))
sketch1.addConstraint(Sketcher.Constraint("Equal", 21, 51))
sketch1.addConstraint(Sketcher.Constraint("Equal", 18, 54))
sketch1.addConstraint(Sketcher.Constraint("Equal", 62, 65))
sketch1.addConstraint(Sketcher.Constraint("Equal", 77, 83))
sketch1.addConstraint(Sketcher.Constraint("Equal", 74, 86))
sketch1.addConstraint(Sketcher.Constraint("Equal", 65, 2))
sketch1.addConstraint(Sketcher.Constraint("Equal", 48, 11))
sketch1.addConstraint(Sketcher.Constraint("Equal", 11, 17))
sketch1.addConstraint(Sketcher.Constraint("Radius", 3, Q("0.03125 in")))
sketch1.addConstraint(Sketcher.Constraint("DistanceX", 24, 2, 24, 1, Q("10 mm")))
sketch1.addConstraint(Sketcher.Constraint("DistanceX", 77, 1, 77, 2, Q("5 mm")))
sketch1.addConstraint(Sketcher.Constraint("DistanceX", 71, 1, 71, 2, Q("4.22924 mm")))
sketch1.addConstraint(Sketcher.Constraint("DistanceX", -1, 1, 3, 1, Q("140.071501 mm")))
sketch1.addConstraint(Sketcher.Constraint("DistanceX", 1, 1, 1, 2, Q("4.327423 mm")))
sketch1.addConstraint(Sketcher.Constraint("DistanceX", 4, 1, 4, 2, Q("0.900045 mm")))
sketch1.addConstraint(Sketcher.Constraint("DistanceX", 7, 1, 7, 2, Q("5.227468 mm")))
sketch1.addConstraint(Sketcher.Constraint("DistanceX", 21, 2, 21, 1, Q("3.402468 mm")))
sketch1.addConstraint(Sketcher.Constraint("DistanceX", 27, 2, 27, 1, Q("42.618936 mm")))
sketch1.addConstraint(Sketcher.Constraint("DistanceX", 33, 2, 33, 1, Q("146.276936 mm")))
sketch1.addConstraint(Sketcher.Constraint("DistanceX", 39, 2, 39, 1, Q("18.809468 mm")))
sketch1.addConstraint(Sketcher.Constraint("DistanceX", 42, 2, 42, 1, Q("2.754936 mm")))
sketch1.addConstraint(Sketcher.Constraint("DistanceX", 68, 1, 68, 2, Q("0.998228 mm")))
sketch1.addConstraint(Sketcher.Constraint("DistanceX", 74, 1, 74, 2, Q("31.449936 mm")))
sketch1.addConstraint(Sketcher.Constraint("DistanceX", 80, 1, 80, 2, Q("182.264936 mm")))
sketch1.addConstraint(Sketcher.Constraint("DistanceY", 0, 2, 0, 1, Q("6.802268 mm")))
sketch1.addConstraint(Sketcher.Constraint("DistanceY", 5, 1, 5, 2, Q("0.452268 mm")))
sketch1.addConstraint(Sketcher.Constraint("DistanceY", 8, 1, 8, 2, Q("0.952668 mm")))
sketch1.addConstraint(Sketcher.Constraint("DistanceY", 14, 1, 14, 2, Q("7.754936 mm")))
sketch1.addConstraint(Sketcher.Constraint("DistanceY", 20, 1, 20, 2, Q("5.702468 mm")))
sketch1.addConstraint(Sketcher.Constraint("DistanceY", 23, 1, 23, 2, Q("2.052468 mm")))
sketch1.addConstraint(Sketcher.Constraint("DistanceY", 31, 2, 31, 1, Q("5.392668 mm")))
sketch1.addConstraint(Sketcher.Constraint("DistanceY", 40, 2, 40, 1, Q("8.877468 mm")))
sketch1.addConstraint(Sketcher.Constraint("DistanceX", -1, 1, 6, 3, Q("141.532812 mm")))
sketch1.addConstraint(Sketcher.Constraint("DistanceX", -1, 1, 9, 3, Q("147.882812 mm")))
sketch1.addConstraint(Sketcher.Constraint("DistanceX", -1, 1, 22, 3, Q("143.357812 mm")))
sketch1.addConstraint(Sketcher.Constraint("DistanceX", -1, 1, 26, 3, Q("132.23528 mm")))
sketch1.addConstraint(Sketcher.Constraint("DistanceX", -1, 1, 28, 3, Q("88.493812 mm")))
sketch1.addConstraint(Sketcher.Constraint("DistanceX", -1, 1, 32, 3, Q("77.37128 mm")))
sketch1.addConstraint(Sketcher.Constraint("DistanceX", 34, 3, -1, 1, Q("70.028188 mm")))
sketch1.addConstraint(Sketcher.Constraint("DistanceX", 41, 3, -1, 1, Q("101.08272 mm")))
sketch1.addConstraint(Sketcher.Constraint("DistanceX", 69, 3, -1, 1, Q("132.06896 mm")))
sketch1.addConstraint(Sketcher.Constraint("DistanceY", 0, 2, -1, 1, Q("67.612542 mm")))
sketch1.addConstraint(Sketcher.Constraint("DistanceY", 9, 1, -1, 1, Q("57.612542 mm")))
sketch1.setExpression("Constraints[257]", "Params.sketch1_radius")
pad1 = body.newObject("PartDesign::Pad", "Pad")
pad1.Profile = sketch1
pad1.setExpression("Length", "Params.pad1_length")
doc.recompute()

chamfer = body.newObject("PartDesign::Chamfer", "Chamfer")
chamfer.Base = (pad1, edges_at(pad1, [
    (100.927, -67.613, 3.175),
    (95.927, -67.613, 3.175),
    (-88.583, -67.613, 3.175),
    (-93.583, -67.613, 3.175),
    (-127.278, -67.613, 3.175),
    (-131.508, -67.613, 3.175),
    (-135.453, -17.613, 3.175),
    (-125.453, -17.613, 3.175),
    (-80.589, -17.613, 3.175),
    (-70.589, -17.613, 3.175),
    (77.933, -17.613, 3.175),
    (87.933, -17.613, 3.175),
    (132.797, -17.613, 3.175),
    (142.797, -17.613, 3.175),
    (138.949, -67.613, 3.175),
    (134.622, -67.613, 3.175),
]))
chamfer.setExpression("Size", "Params.chamfer_size")
doc.recompute()

chamfer2 = body.newObject("PartDesign::Chamfer", "Chamfer001")
chamfer2.Base = (chamfer, edges_at(chamfer, [
    (-146.328, -57.613, 3.175),
    (-146.328, -47.613, 3.175),
    (-146.328, -37.613, 3.175),
    (-146.328, -27.613, 3.175),
    (153.672, -27.613, 3.175),
    (153.672, -37.613, 3.175),
    (153.672, -47.613, 3.175),
    (153.672, -57.613, 3.175),
]))
chamfer2.setExpression("Size", "Params.chamfer2_size")

doc.recompute()
